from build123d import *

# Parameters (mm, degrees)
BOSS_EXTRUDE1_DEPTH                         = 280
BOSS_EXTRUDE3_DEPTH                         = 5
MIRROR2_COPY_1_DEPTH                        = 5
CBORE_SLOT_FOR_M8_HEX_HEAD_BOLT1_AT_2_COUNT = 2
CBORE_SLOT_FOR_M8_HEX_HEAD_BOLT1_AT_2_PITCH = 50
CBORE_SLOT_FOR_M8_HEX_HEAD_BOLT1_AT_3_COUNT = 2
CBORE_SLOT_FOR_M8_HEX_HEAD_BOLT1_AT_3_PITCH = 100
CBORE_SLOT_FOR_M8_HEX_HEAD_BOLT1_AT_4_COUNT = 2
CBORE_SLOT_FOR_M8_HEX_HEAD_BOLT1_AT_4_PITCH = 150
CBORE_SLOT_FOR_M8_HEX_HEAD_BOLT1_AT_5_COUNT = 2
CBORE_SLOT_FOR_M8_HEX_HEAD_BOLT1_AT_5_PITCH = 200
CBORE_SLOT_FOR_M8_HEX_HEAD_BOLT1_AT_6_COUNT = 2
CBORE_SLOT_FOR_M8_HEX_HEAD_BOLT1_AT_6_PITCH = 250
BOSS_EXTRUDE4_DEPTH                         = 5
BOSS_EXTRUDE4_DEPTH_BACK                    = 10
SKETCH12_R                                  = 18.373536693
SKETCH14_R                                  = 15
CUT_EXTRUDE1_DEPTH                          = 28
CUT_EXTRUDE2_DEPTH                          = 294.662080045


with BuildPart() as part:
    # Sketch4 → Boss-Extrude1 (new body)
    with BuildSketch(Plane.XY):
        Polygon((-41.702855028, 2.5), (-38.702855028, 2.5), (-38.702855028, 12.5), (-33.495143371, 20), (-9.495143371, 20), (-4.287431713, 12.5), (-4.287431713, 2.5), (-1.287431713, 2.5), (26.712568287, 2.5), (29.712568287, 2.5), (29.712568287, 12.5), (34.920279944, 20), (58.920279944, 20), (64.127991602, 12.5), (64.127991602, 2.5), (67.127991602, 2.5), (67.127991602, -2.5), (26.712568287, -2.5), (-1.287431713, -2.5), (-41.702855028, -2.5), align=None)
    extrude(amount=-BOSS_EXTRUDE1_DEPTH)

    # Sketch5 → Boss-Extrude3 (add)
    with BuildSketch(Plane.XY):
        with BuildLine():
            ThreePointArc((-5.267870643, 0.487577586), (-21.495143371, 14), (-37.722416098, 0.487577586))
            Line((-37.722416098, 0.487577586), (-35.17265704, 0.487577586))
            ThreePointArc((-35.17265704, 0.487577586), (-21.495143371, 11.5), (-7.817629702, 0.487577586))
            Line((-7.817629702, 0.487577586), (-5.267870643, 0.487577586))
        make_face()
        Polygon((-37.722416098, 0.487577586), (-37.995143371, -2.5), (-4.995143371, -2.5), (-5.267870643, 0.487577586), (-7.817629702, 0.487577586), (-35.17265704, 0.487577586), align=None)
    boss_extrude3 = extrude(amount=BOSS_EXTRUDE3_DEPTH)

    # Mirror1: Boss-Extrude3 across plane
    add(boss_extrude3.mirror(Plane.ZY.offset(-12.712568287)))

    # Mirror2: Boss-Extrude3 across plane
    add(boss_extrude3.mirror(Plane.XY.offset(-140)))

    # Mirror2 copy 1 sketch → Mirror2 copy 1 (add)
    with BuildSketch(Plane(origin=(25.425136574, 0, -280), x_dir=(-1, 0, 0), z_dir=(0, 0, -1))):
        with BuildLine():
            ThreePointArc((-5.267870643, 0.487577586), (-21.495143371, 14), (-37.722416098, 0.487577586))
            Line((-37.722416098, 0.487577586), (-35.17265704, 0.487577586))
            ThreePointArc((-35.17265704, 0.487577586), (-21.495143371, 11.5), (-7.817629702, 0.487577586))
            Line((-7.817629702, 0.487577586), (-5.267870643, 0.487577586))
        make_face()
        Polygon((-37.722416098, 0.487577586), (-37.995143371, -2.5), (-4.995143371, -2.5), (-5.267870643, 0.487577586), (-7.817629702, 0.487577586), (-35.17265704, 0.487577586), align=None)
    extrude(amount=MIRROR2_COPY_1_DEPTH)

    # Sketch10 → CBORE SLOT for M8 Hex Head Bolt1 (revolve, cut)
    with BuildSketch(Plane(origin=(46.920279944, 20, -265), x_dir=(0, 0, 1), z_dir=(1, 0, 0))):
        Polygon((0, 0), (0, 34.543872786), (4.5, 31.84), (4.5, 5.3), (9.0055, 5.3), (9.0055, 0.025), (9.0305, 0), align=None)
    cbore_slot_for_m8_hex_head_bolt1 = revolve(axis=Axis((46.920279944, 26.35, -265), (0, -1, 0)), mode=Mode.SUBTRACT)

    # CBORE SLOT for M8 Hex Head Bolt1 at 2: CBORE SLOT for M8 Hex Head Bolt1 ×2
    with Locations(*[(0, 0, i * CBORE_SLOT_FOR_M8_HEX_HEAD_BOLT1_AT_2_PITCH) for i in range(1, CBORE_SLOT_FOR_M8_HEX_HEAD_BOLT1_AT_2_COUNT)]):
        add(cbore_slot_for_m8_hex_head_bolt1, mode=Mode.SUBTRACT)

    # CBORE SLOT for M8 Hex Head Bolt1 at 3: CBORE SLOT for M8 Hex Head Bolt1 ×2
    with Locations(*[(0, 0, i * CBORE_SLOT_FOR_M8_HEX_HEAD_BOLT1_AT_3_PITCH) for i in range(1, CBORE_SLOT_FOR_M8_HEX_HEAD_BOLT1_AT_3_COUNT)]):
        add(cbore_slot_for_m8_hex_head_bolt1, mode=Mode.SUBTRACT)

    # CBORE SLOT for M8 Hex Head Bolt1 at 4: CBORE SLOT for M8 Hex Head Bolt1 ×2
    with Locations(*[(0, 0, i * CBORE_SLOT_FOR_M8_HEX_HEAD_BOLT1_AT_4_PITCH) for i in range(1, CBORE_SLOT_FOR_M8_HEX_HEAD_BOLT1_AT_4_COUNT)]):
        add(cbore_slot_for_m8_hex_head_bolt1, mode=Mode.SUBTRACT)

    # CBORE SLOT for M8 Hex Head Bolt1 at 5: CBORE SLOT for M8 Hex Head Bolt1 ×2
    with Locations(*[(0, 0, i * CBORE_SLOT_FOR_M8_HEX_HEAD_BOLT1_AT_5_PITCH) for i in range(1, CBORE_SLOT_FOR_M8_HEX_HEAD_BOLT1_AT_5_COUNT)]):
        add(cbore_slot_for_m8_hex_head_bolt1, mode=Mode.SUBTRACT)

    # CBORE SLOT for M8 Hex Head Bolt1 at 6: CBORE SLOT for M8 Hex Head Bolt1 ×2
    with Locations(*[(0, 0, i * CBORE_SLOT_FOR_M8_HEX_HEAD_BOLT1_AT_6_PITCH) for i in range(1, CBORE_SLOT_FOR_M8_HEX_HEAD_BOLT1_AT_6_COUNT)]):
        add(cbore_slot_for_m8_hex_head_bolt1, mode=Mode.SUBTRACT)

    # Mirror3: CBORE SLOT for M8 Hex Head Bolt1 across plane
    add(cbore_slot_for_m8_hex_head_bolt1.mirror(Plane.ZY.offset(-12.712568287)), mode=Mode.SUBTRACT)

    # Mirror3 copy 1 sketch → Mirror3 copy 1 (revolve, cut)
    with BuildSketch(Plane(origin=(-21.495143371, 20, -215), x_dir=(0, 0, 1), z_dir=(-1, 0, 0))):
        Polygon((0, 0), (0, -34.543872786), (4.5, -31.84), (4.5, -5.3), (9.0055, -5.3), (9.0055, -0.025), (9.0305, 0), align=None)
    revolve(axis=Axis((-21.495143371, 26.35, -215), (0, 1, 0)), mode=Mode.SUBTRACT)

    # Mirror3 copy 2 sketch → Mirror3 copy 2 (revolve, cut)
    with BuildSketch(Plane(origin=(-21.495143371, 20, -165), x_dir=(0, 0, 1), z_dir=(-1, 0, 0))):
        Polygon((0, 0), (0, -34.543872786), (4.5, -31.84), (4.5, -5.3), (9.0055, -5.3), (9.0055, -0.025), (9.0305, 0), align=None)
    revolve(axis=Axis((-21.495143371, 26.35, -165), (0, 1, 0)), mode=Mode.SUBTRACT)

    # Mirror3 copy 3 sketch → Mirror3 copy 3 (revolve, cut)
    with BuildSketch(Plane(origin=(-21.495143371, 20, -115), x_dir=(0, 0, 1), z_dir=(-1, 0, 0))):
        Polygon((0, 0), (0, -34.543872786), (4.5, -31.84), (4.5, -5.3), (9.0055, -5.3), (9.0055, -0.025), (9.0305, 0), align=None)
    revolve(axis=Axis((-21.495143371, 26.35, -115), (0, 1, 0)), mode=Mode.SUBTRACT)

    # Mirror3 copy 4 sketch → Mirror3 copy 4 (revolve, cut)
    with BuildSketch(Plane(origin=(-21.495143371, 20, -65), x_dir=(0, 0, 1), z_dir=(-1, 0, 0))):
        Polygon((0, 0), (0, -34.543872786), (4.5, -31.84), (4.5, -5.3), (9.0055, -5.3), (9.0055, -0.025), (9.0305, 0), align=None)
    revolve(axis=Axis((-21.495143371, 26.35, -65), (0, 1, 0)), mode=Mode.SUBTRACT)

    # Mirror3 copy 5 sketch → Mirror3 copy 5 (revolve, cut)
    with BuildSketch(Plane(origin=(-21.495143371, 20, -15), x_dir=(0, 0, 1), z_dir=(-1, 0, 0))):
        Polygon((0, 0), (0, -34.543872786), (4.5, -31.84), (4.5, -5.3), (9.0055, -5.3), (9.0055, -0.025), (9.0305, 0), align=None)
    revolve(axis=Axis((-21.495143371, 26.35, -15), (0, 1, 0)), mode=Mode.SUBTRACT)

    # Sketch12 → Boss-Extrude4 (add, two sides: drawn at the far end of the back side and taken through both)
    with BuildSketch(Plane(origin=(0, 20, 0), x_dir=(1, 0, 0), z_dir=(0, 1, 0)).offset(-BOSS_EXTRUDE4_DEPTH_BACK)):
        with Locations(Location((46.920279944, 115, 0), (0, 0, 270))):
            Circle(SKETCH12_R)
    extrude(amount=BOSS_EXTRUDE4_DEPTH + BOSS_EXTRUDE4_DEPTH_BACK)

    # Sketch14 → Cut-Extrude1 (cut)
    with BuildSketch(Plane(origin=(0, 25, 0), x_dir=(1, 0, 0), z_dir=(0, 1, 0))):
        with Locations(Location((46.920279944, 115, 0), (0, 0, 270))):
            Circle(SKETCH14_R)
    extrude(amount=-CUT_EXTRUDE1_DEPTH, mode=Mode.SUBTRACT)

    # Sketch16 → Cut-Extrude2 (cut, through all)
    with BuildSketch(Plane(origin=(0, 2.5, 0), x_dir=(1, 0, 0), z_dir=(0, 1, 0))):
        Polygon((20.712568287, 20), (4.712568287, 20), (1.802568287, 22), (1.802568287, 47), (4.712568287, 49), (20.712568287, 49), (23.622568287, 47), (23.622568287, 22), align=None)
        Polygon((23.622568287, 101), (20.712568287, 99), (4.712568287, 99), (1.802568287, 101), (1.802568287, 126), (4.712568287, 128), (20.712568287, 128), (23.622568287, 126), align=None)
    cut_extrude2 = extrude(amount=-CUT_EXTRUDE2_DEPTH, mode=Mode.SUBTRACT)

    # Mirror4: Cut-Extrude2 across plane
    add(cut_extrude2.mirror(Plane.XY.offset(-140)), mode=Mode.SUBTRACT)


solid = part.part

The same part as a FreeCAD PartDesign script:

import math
import FreeCAD as App
import Part
import Sketcher

V = App.Vector
Q = App.Units.Quantity

doc = App.newDocument("Part")
body = doc.addObject("PartDesign::Body", "Body")

sketch1 = body.newObject("Sketcher::SketchObject", "Sketch")
sketch1.AttachmentSupport = (doc.getObject("XY_Plane"), [""])
sketch1.MapMode = "FlatFace"
sketch1.addGeometry([
    Part.LineSegment(V(-38.702855, 2.5, 0), V(-41.702855, 2.5, 0)),
    Part.LineSegment(V(-41.702855, 2.5, 0), V(-41.702855, -2.5, 0)),
    Part.LineSegment(V(-41.702855, -2.5, 0), V(67.127992, -2.5, 0)),
    Part.LineSegment(V(67.127992, -2.5, 0), V(67.127992, 2.5, 0)),
    Part.LineSegment(V(67.127992, 2.5, 0), V(64.127992, 2.5, 0)),
    Part.LineSegment(V(64.127992, 2.5, 0), V(64.127992, 12.5, 0)),
    Part.LineSegment(V(64.127992, 12.5, 0), V(58.92028, 20, 0)),
    Part.LineSegment(V(58.92028, 20, 0), V(34.92028, 20, 0)),
    Part.LineSegment(V(34.92028, 20, 0), V(29.712568, 12.5, 0)),
    Part.LineSegment(V(29.712568, 12.5, 0), V(29.712568, 2.5, 0)),
    Part.LineSegment(V(29.712568, 2.5, 0), V(-4.287432, 2.5, 0)),
    Part.LineSegment(V(-4.287432, 2.5, 0), V(-4.287432, 12.5, 0)),
    Part.LineSegment(V(-4.287432, 12.5, 0), V(-9.495143, 20, 0)),
    Part.LineSegment(V(-9.495143, 20, 0), V(-33.495143, 20, 0)),
    Part.LineSegment(V(-33.495143, 20, 0), V(-38.702855, 12.5, 0)),
    Part.LineSegment(V(-38.702855, 12.5, 0), V(-38.702855, 2.5, 0)),
], False)
sketch1.addConstraint([
    Sketcher.Constraint("Coincident", 0, 2, 1, 1),
    Sketcher.Constraint("Coincident", 1, 2, 2, 1),
    Sketcher.Constraint("Coincident", 2, 2, 3, 1),
    Sketcher.Constraint("Coincident", 3, 2, 4, 1),
    Sketcher.Constraint("Coincident", 4, 2, 5, 1),
    Sketcher.Constraint("Coincident", 5, 2, 6, 1),
    Sketcher.Constraint("Coincident", 6, 2, 7, 1),
    Sketcher.Constraint("Coincident", 7, 2, 8, 1),
    Sketcher.Constraint("Coincident", 8, 2, 9, 1),
    Sketcher.Constraint("Coincident", 9, 2, 10, 1),
    Sketcher.Constraint("Coincident", 10, 2, 11, 1),
    Sketcher.Constraint("Coincident", 11, 2, 12, 1),
    Sketcher.Constraint("Coincident", 12, 2, 13, 1),
    Sketcher.Constraint("Coincident", 13, 2, 14, 1),
    Sketcher.Constraint("Coincident", 14, 2, 15, 1),
    Sketcher.Constraint("Coincident", 15, 2, 0, 1),
    Sketcher.Constraint("Horizontal", 0),
    Sketcher.Constraint("Vertical", 1),
    Sketcher.Constraint("Horizontal", 2),
    Sketcher.Constraint("Vertical", 3),
    Sketcher.Constraint("Horizontal", 4),
    Sketcher.Constraint("Vertical", 5),
    Sketcher.Constraint("Horizontal", 7),
    Sketcher.Constraint("Vertical", 9),
    Sketcher.Constraint("Horizontal", 10),
    Sketcher.Constraint("Vertical", 11),
    Sketcher.Constraint("Horizontal", 13),
    Sketcher.Constraint("Vertical", 15),
    Sketcher.Constraint("Parallel", 6, 12),
    Sketcher.Constraint("Parallel", 8, 14),
    Sketcher.Constraint("Horizontal", 0, 2, 3, 2),
    Sketcher.Constraint("Horizontal", 5, 2, 8, 2),
    Sketcher.Constraint("Horizontal", 4, 2, 9, 2),
    Sketcher.Constraint("Horizontal", 8, 2, 11, 2),
    Sketcher.Constraint("Horizontal", 7, 2, 12, 2),
    Sketcher.Constraint("Horizontal", 11, 2, 14, 2),
    Sketcher.Constraint("Equal", 0, 4),
    Sketcher.Constraint("Equal", 7, 13),
    Sketcher.Constraint("Equal", 6, 8),
    Sketcher.Constraint("DistanceX", 0, 2, 0, 1, Q("3 mm")),
    Sketcher.Constraint("DistanceX", 7, 2, 7, 1, Q("24 mm")),
    Sketcher.Constraint("DistanceX", 10, 2, 10, 1, Q("34 mm")),
    Sketcher.Constraint("DistanceY", 1, 2, 1, 1, Q("5 mm")),
    Sketcher.Constraint("DistanceY", 5, 1, 5, 2, Q("10 mm")),
    Sketcher.Constraint("DistanceY", -1, 1, 6, 2, Q("20 mm")),
    Sketcher.Constraint("DistanceY", -1, 1, 0, 2, Q("2.5 mm")),
    Sketcher.Constraint("Distance", 6, Q("9.130732 mm")),
    Sketcher.Constraint("DistanceX", -1, 1, 2, 2, Q("67.127992 mm")),
])
pad1 = body.newObject("PartDesign::Pad", "Pad")
pad1.Profile = sketch1
pad1.Length = 280
pad1.Reversed = True

sketch2 = body.newObject("Sketcher::SketchObject", "Sketch001")
sketch2.AttachmentSupport = (doc.getObject("XY_Plane"), [""])
sketch2.MapMode = "FlatFace"
sketch2.addGeometry([
    Part.ArcOfCircle(Part.Circle(V(-21.495143, -2.5, 0), V(0, 0, 1), 16.5), math.radians(10.431817), math.radians(169.568183)),
    Part.LineSegment(V(-37.722416, 0.487578, 0), V(-37.995143, -2.5, 0)),
    Part.LineSegment(V(-37.995143, -2.5, 0), V(-4.995143, -2.5, 0)),
    Part.LineSegment(V(-4.995143, -2.5, 0), V(-5.267871, 0.487578, 0)),
    Part.ArcOfCircle(Part.Circle(V(-21.495143, -2.5, 0), V(0, 0, 1), 14), math.radians(12.321582), math.radians(167.678418)),
    Part.LineSegment(V(-7.81763, 0.487578, 0), V(-35.172657, 0.487578, 0)),
], False)
sketch2.addConstraint([
    Sketcher.Constraint("Coincident", 0, 2, 1, 1),
    Sketcher.Constraint("Coincident", 1, 2, 2, 1),
    Sketcher.Constraint("Coincident", 2, 2, 3, 1),
    Sketcher.Constraint("Coincident", 3, 2, 0, 1),
    Sketcher.Constraint("Coincident", 4, 1, 5, 1),
    Sketcher.Constraint("Coincident", 5, 2, 4, 2),
    Sketcher.Constraint("Horizontal", 2),
    Sketcher.Constraint("Horizontal", 5),
    Sketcher.Constraint("Coincident", 4, 3, 0, 3),
    Sketcher.Constraint("Horizontal", 4, 3, 1, 2),
    Sketcher.Constraint("Horizontal", 0, 2, 3, 2),
    Sketcher.Constraint("Horizontal", 3, 2, 4, 1),
    Sketcher.Constraint("Equal", 1, 3),
    Sketcher.Constraint("Radius", 4, Q("14 mm")),
    Sketcher.Constraint("Radius", 0, Q("16.5 mm")),
    Sketcher.Constraint("DistanceX", 2, 1, 2, 2, Q("33 mm")),
    Sketcher.Constraint("Distance", 1, Q("3 mm")),
    Sketcher.Constraint("DistanceY", 0, 3, -1, 1, Q("2.5 mm")),
    Sketcher.Constraint("DistanceX", 3, 2, -1, 1, Q("5.267871 mm")),
])
pad2 = body.newObject("PartDesign::Pad", "Pad001")
pad2.Profile = sketch2
pad2.Length = 5
doc.recompute()

datumplane = body.newObject("PartDesign::Plane", "DatumPlane")
datumplane.AttachmentSupport = (doc.getObject("YZ_Plane"), [""])
datumplane.MapMode = "FlatFace"
datumplane.AttachmentOffset = App.Placement(V(0, 0, 12.712568), App.Rotation())
mirrored = body.newObject("PartDesign::Mirrored", "Mirrored")
mirrored.Originals = [pad2]
mirrored.MirrorPlane = (datumplane, [""])
body.Tip = mirrored
doc.recompute()

datumplane2 = body.newObject("PartDesign::Plane", "DatumPlane001")
datumplane2.AttachmentSupport = (doc.getObject("XY_Plane"), [""])
datumplane2.MapMode = "FlatFace"
datumplane2.AttachmentOffset = App.Placement(V(0, 0, -140), App.Rotation())
mirrored2 = body.newObject("PartDesign::Mirrored", "Mirrored001")
mirrored2.Originals = [pad2]
mirrored2.MirrorPlane = (datumplane2, [""])
body.Tip = mirrored2

sketch3 = body.newObject("Sketcher::SketchObject", "Sketch002")
sketch3.AttachmentSupport = (doc.getObject("XY_Plane"), [""])
sketch3.MapMode = "FlatFace"
sketch3.AttachmentOffset = App.Placement(V(0, 0, -280), App.Rotation())
sketch3.addGeometry([
    Part.ArcOfCircle(Part.Circle(V(46.92028, -2.5, 0), V(0, 0, 1), 16.5), math.radians(10.431817), math.radians(169.568183)),
    Part.LineSegment(V(63.147553, 0.487578, 0), V(63.42028, -2.5, 0)),
    Part.LineSegment(V(63.42028, -2.5, 0), V(30.42028, -2.5, 0)),
    Part.LineSegment(V(30.42028, -2.5, 0), V(30.693007, 0.487578, 0)),
    Part.ArcOfCircle(Part.Circle(V(46.92028, -2.5, 0), V(0, 0, 1), 14), math.radians(12.321582), math.radians(167.678418)),
    Part.LineSegment(V(33.242766, 0.487578, 0), V(60.597794, 0.487578, 0)),
], False)
sketch3.addConstraint([
    Sketcher.Constraint("Coincident", 0, 1, 1, 1),
    Sketcher.Constraint("Coincident", 1, 2, 2, 1),
    Sketcher.Constraint("Coincident", 2, 2, 3, 1),
    Sketcher.Constraint("Coincident", 3, 2, 0, 2),
    Sketcher.Constraint("Coincident", 4, 1, 5, 2),
    Sketcher.Constraint("Coincident", 5, 1, 4, 2),
    Sketcher.Constraint("Horizontal", 2),
    Sketcher.Constraint("Horizontal", 5),
    Sketcher.Constraint("Coincident", 4, 3, 0, 3),
    Sketcher.Constraint("Horizontal", 4, 3, 1, 2),
    Sketcher.Constraint("Horizontal", 0, 1, 3, 2),
    Sketcher.Constraint("Horizontal", 3, 2, 4, 1),
    Sketcher.Constraint("Equal", 1, 3),
    Sketcher.Constraint("Radius", 4, Q("14 mm")),
    Sketcher.Constraint("Radius", 0, Q("16.5 mm")),
    Sketcher.Constraint("DistanceX", 2, 2, 2, 1, Q("33 mm")),
    Sketcher.Constraint("Distance", 1, Q("3 mm")),
    Sketcher.Constraint("DistanceY", 0, 3, -1, 1, Q("2.5 mm")),
    Sketcher.Constraint("DistanceX", -1, 1, 0, 3, Q("46.92028 mm")),
])
pad3 = body.newObject("PartDesign::Pad", "Pad002")
pad3.Profile = sketch3
pad3.Length = 5
pad3.Reversed = True

sketch4 = body.newObject("Sketcher::SketchObject", "Sketch003")
sketch4.AttachmentSupport = (doc.getObject("YZ_Plane"), [""])
sketch4.MapMode = "FlatFace"
sketch4.AttachmentOffset = App.Placement(V(0, 0, 46.92028), App.Rotation())
sketch4.addGeometry([
    Part.LineSegment(V(-14.543873, -265, 0), V(20, -265, 0)),
    Part.LineSegment(V(20, -265, 0), V(20, -255.9695, 0)),
    Part.LineSegment(V(20, -255.9695, 0), V(19.975, -255.9945, 0)),
    Part.LineSegment(V(19.975, -255.9945, 0), V(14.7, -255.9945, 0)),
    Part.LineSegment(V(14.7, -255.9945, 0), V(14.7, -260.5, 0)),
    Part.LineSegment(V(14.7, -260.5, 0), V(-11.84, -260.5, 0)),
    Part.LineSegment(V(-11.84, -260.5, 0), V(-14.543873, -265, 0)),
], False)
sketch4.addGeometry(Part.LineSegment(V(20, -265, 0), V(-14.543873, -265, 0)), True)
sketch4.addConstraint([
    Sketcher.Constraint("Coincident", 0, 2, 1, 1),
    Sketcher.Constraint("Coincident", 1, 2, 2, 1),
    Sketcher.Constraint("Coincident", 2, 2, 3, 1),
    Sketcher.Constraint("Coincident", 3, 2, 4, 1),
    Sketcher.Constraint("Coincident", 4, 2, 5, 1),
    Sketcher.Constraint("Coincident", 5, 2, 6, 1),
    Sketcher.Constraint("Coincident", 6, 2, 0, 1),
    Sketcher.Constraint("Horizontal", 0),
    Sketcher.Constraint("Vertical", 1),
    Sketcher.Constraint("Horizontal", 3),
    Sketcher.Constraint("Vertical", 4),
    Sketcher.Constraint("Horizontal", 5),
    Sketcher.Constraint("Horizontal", 7),
    Sketcher.Constraint("Coincident", 7, 1, 0, 2),
    Sketcher.Constraint("Equal", 0, 7),
    Sketcher.Constraint("Angle", 2, Q("-135 deg")),
    Sketcher.Constraint("Angle", 6, Q("-121 deg")),
    Sketcher.Constraint("DistanceX", -1, 1, 0, 2, Q("20 mm")),
    Sketcher.Constraint("DistanceY", 0, 2, -1, 1, Q("265 mm")),
    Sketcher.Constraint("DistanceX", 5, 2, 5, 1, Q("26.54 mm")),
    Sketcher.Constraint("DistanceX", -1, 1, 3, 2, Q("14.7 mm")),
    Sketcher.Constraint("DistanceY", 4, 2, -1, 1, Q("260.5 mm")),
    Sketcher.Constraint("DistanceX", 3, 2, 3, 1, Q("5.275 mm")),
    Sketcher.Constraint("DistanceY", 1, 1, 1, 2, Q("9.0305 mm")),
])
groove = body.newObject("PartDesign::Groove", "Groove")
groove.Profile = sketch4
groove.ReferenceAxis = (sketch4, ["Axis0"])
groove.Angle = 360
doc.recompute()

linearpattern = body.newObject("PartDesign::LinearPattern", "LinearPattern")
linearpattern.Originals = [groove]
linearpattern.Direction = (doc.getObject("Z_Axis"), [""])
linearpattern.Mode = "offset"
linearpattern.Offset = 50
linearpattern.Occurrences = 2
body.Tip = linearpattern
doc.recompute()

linearpattern2 = body.newObject("PartDesign::LinearPattern", "LinearPattern001")
linearpattern2.Originals = [groove]
linearpattern2.Direction = (doc.getObject("Z_Axis"), [""])
linearpattern2.Mode = "offset"
linearpattern2.Offset = 100
linearpattern2.Occurrences = 2
body.Tip = linearpattern2
doc.recompute()

linearpattern3 = body.newObject("PartDesign::LinearPattern", "LinearPattern002")
linearpattern3.Originals = [groove]
linearpattern3.Direction = (doc.getObject("Z_Axis"), [""])
linearpattern3.Mode = "offset"
linearpattern3.Offset = 150
linearpattern3.Occurrences = 2
body.Tip = linearpattern3
doc.recompute()

linearpattern4 = body.newObject("PartDesign::LinearPattern", "LinearPattern003")
linearpattern4.Originals = [groove]
linearpattern4.Direction = (doc.getObject("Z_Axis"), [""])
linearpattern4.Mode = "offset"
linearpattern4.Offset = 200
linearpattern4.Occurrences = 2
body.Tip = linearpattern4
doc.recompute()

linearpattern5 = body.newObject("PartDesign::LinearPattern", "LinearPattern004")
linearpattern5.Originals = [groove]
linearpattern5.Direction = (doc.getObject("Z_Axis"), [""])
linearpattern5.Mode = "offset"
linearpattern5.Offset = 250
linearpattern5.Occurrences = 2
body.Tip = linearpattern5
doc.recompute()

datumplane3 = body.newObject("PartDesign::Plane", "DatumPlane002")
datumplane3.AttachmentSupport = (doc.getObject("YZ_Plane"), [""])
datumplane3.MapMode = "FlatFace"
datumplane3.AttachmentOffset = App.Placement(V(0, 0, 12.712568), App.Rotation())
mirrored3 = body.newObject("PartDesign::Mirrored", "Mirrored002")
mirrored3.Originals = [groove]
mirrored3.MirrorPlane = (datumplane3, [""])
body.Tip = mirrored3

sketch5 = body.newObject("Sketcher::SketchObject", "Sketch004")
sketch5.AttachmentSupport = (doc.getObject("YZ_Plane"), [""])
sketch5.MapMode = "FlatFace"
sketch5.AttachmentOffset = App.Placement(V(0, 0, -21.495143), App.Rotation())
sketch5.addGeometry([
    Part.LineSegment(V(20, -215, 0), V(-14.543873, -215, 0)),
    Part.LineSegment(V(-14.543873, -215, 0), V(-11.84, -210.5, 0)),
    Part.LineSegment(V(-11.84, -210.5, 0), V(14.7, -210.5, 0)),
    Part.LineSegment(V(14.7, -210.5, 0), V(14.7, -205.9945, 0)),
    Part.LineSegment(V(14.7, -205.9945, 0), V(19.975, -205.9945, 0)),
    Part.LineSegment(V(19.975, -205.9945, 0), V(20, -205.9695, 0)),
    Part.LineSegment(V(20, -205.9695, 0), V(20, -215, 0)),
], False)
sketch5.addGeometry(Part.LineSegment(V(-14.543873, -215, 0), V(20, -215, 0)), True)
sketch5.addConstraint([
    Sketcher.Constraint("Coincident", 0, 2, 1, 1),
    Sketcher.Constraint("Coincident", 1, 2, 2, 1),
    Sketcher.Constraint("Coincident", 2, 2, 3, 1),
    Sketcher.Constraint("Coincident", 3, 2, 4, 1),
    Sketcher.Constraint("Coincident", 4, 2, 5, 1),
    Sketcher.Constraint("Coincident", 5, 2, 6, 1),
    Sketcher.Constraint("Coincident", 6, 2, 0, 1),
    Sketcher.Constraint("Horizontal", 0),
    Sketcher.Constraint("Horizontal", 2),
    Sketcher.Constraint("Vertical", 3),
    Sketcher.Constraint("Horizontal", 4),
    Sketcher.Constraint("Vertical", 6),
    Sketcher.Constraint("Horizontal", 7),
    Sketcher.Constraint("Coincident", 7, 1, 0, 2),
    Sketcher.Constraint("Vertical", 5, 2, 7, 2),
    Sketcher.Constraint("Angle", 1, Q("59 deg")),
    Sketcher.Constraint("Angle", 5, Q("45 deg")),
    Sketcher.Constraint("DistanceY", 0, 2, -1, 1, Q("215 mm")),
    Sketcher.Constraint("DistanceX", -1, 1, 5, 2, Q("20 mm")),
    Sketcher.Constraint("DistanceX", 2, 1, 2, 2, Q("26.54 mm")),
    Sketcher.Constraint("DistanceY", 1, 2, -1, 1, Q("210.5 mm")),
    Sketcher.Constraint("DistanceX", -1, 1, 2, 2, Q("14.7 mm")),
    Sketcher.Constraint("DistanceX", 4, 1, 4, 2, Q("5.275 mm")),
    Sketcher.Constraint("DistanceY", 3, 1, 3, 2, Q("4.5055 mm")),
])
groove2 = body.newObject("PartDesign::Groove", "Groove001")
groove2.Profile = sketch5
groove2.ReferenceAxis = (sketch5, ["Axis0"])
groove2.Angle = 360

sketch6 = body.newObject("Sketcher::SketchObject", "Sketch005")
sketch6.AttachmentSupport = (doc.getObject("YZ_Plane"), [""])
sketch6.MapMode = "FlatFace"
sketch6.AttachmentOffset = App.Placement(V(0, 0, -21.495143), App.Rotation())
sketch6.addGeometry([
    Part.LineSegment(V(20, -165, 0), V(-14.543873, -165, 0)),
    Part.LineSegment(V(-14.543873, -165, 0), V(-11.84, -160.5, 0)),
    Part.LineSegment(V(-11.84, -160.5, 0), V(14.7, -160.5, 0)),
    Part.LineSegment(V(14.7, -160.5, 0), V(14.7, -155.9945, 0)),
    Part.LineSegment(V(14.7, -155.9945, 0), V(19.975, -155.9945, 0)),
    Part.LineSegment(V(19.975, -155.9945, 0), V(20, -155.9695, 0)),
    Part.LineSegment(V(20, -155.9695, 0), V(20, -165, 0)),
], False)
sketch6.addGeometry(Part.LineSegment(V(-14.543873, -165, 0), V(20, -165, 0)), True)
sketch6.addConstraint([
    Sketcher.Constraint("Coincident", 0, 2, 1, 1),
    Sketcher.Constraint("Coincident", 1, 2, 2, 1),
    Sketcher.Constraint("Coincident", 2, 2, 3, 1),
    Sketcher.Constraint("Coincident", 3, 2, 4, 1),
    Sketcher.Constraint("Coincident", 4, 2, 5, 1),
    Sketcher.Constraint("Coincident", 5, 2, 6, 1),
    Sketcher.Constraint("Coincident", 6, 2, 0, 1),
    Sketcher.Constraint("Horizontal", 0),
    Sketcher.Constraint("Horizontal", 2),
    Sketcher.Constraint("Vertical", 3),
    Sketcher.Constraint("Horizontal", 4),
    Sketcher.Constraint("Vertical", 6),
    Sketcher.Constraint("Horizontal", 7),
    Sketcher.Constraint("Coincident", 7, 1, 0, 2),
    Sketcher.Constraint("Vertical", 5, 2, 7, 2),
    Sketcher.Constraint("Angle", 1, Q("59 deg")),
    Sketcher.Constraint("Angle", 5, Q("45 deg")),
    Sketcher.Constraint("DistanceY", 0, 2, -1, 1, Q("165 mm")),
    Sketcher.Constraint("DistanceX", -1, 1, 5, 2, Q("20 mm")),
    Sketcher.Constraint("DistanceX", 2, 1, 2, 2, Q("26.54 mm")),
    Sketcher.Constraint("DistanceY", 1, 2, -1, 1, Q("160.5 mm")),
    Sketcher.Constraint("DistanceX", -1, 1, 2, 2, Q("14.7 mm")),
    Sketcher.Constraint("DistanceX", 4, 1, 4, 2, Q("5.275 mm")),
    Sketcher.Constraint("DistanceY", 3, 1, 3, 2, Q("4.5055 mm")),
])
groove3 = body.newObject("PartDesign::Groove", "Groove002")
groove3.Profile = sketch6
groove3.ReferenceAxis = (sketch6, ["Axis0"])
groove3.Angle = 360

sketch7 = body.newObject("Sketcher::SketchObject", "Sketch006")
sketch7.AttachmentSupport = (doc.getObject("YZ_Plane"), [""])
sketch7.MapMode = "FlatFace"
sketch7.AttachmentOffset = App.Placement(V(0, 0, -21.495143), App.Rotation())
sketch7.addGeometry([
    Part.LineSegment(V(20, -115, 0), V(-14.543873, -115, 0)),
    Part.LineSegment(V(-14.543873, -115, 0), V(-11.84, -110.5, 0)),
    Part.LineSegment(V(-11.84, -110.5, 0), V(14.7, -110.5, 0)),
    Part.LineSegment(V(14.7, -110.5, 0), V(14.7, -105.9945, 0)),
    Part.LineSegment(V(14.7, -105.9945, 0), V(19.975, -105.9945, 0)),
    Part.LineSegment(V(19.975, -105.9945, 0), V(20, -105.9695, 0)),
    Part.LineSegment(V(20, -105.9695, 0), V(20, -115, 0)),
], False)
sketch7.addGeometry(Part.LineSegment(V(-14.543873, -115, 0), V(20, -115, 0)), True)
sketch7.addConstraint([
    Sketcher.Constraint("Coincident", 0, 2, 1, 1),
    Sketcher.Constraint("Coincident", 1, 2, 2, 1),
    Sketcher.Constraint("Coincident", 2, 2, 3, 1),
    Sketcher.Constraint("Coincident", 3, 2, 4, 1),
    Sketcher.Constraint("Coincident", 4, 2, 5, 1),
    Sketcher.Constraint("Coincident", 5, 2, 6, 1),
    Sketcher.Constraint("Coincident", 6, 2, 0, 1),
    Sketcher.Constraint("Horizontal", 0),
    Sketcher.Constraint("Horizontal", 2),
    Sketcher.Constraint("Vertical", 3),
    Sketcher.Constraint("Horizontal", 4),
    Sketcher.Constraint("Vertical", 6),
    Sketcher.Constraint("Horizontal", 7),
    Sketcher.Constraint("Coincident", 7, 1, 0, 2),
    Sketcher.Constraint("Vertical", 5, 2, 7, 2),
    Sketcher.Constraint("Angle", 1, Q("59 deg")),
    Sketcher.Constraint("Angle", 5, Q("45 deg")),
    Sketcher.Constraint("DistanceY", 0, 2, -1, 1, Q("115 mm")),
    Sketcher.Constraint("DistanceX", -1, 1, 5, 2, Q("20 mm")),
    Sketcher.Constraint("DistanceX", 2, 1, 2, 2, Q("26.54 mm")),
    Sketcher.Constraint("DistanceY", 1, 2, -1, 1, Q("110.5 mm")),
    Sketcher.Constraint("DistanceX", -1, 1, 2, 2, Q("14.7 mm")),
    Sketcher.Constraint("DistanceX", 4, 1, 4, 2, Q("5.275 mm")),
    Sketcher.Constraint("DistanceY", 3, 1, 3, 2, Q("4.5055 mm")),
])
groove4 = body.newObject("PartDesign::Groove", "Groove003")
groove4.Profile = sketch7
groove4.ReferenceAxis = (sketch7, ["Axis0"])
groove4.Angle = 360

sketch8 = body.newObject("Sketcher::SketchObject", "Sketch007")
sketch8.AttachmentSupport = (doc.getObject("YZ_Plane"), [""])
sketch8.MapMode = "FlatFace"
sketch8.AttachmentOffset = App.Placement(V(0, 0, -21.495143), App.Rotation())
sketch8.addGeometry([
    Part.LineSegment(V(20, -65, 0), V(-14.543873, -65, 0)),
    Part.LineSegment(V(-14.543873, -65, 0), V(-11.84, -60.5, 0)),
    Part.LineSegment(V(-11.84, -60.5, 0), V(14.7, -60.5, 0)),
    Part.LineSegment(V(14.7, -60.5, 0), V(14.7, -55.9945, 0)),
    Part.LineSegment(V(14.7, -55.9945, 0), V(19.975, -55.9945, 0)),
    Part.LineSegment(V(19.975, -55.9945, 0), V(20, -55.9695, 0)),
    Part.LineSegment(V(20, -55.9695, 0), V(20, -65, 0)),
], False)
sketch8.addGeometry(Part.LineSegment(V(-14.543873, -65, 0), V(20, -65, 0)), True)
sketch8.addConstraint([
    Sketcher.Constraint("Coincident", 0, 2, 1, 1),
    Sketcher.Constraint("Coincident", 1, 2, 2, 1),
    Sketcher.Constraint("Coincident", 2, 2, 3, 1),
    Sketcher.Constraint("Coincident", 3, 2, 4, 1),
    Sketcher.Constraint("Coincident", 4, 2, 5, 1),
    Sketcher.Constraint("Coincident", 5, 2, 6, 1),
    Sketcher.Constraint("Coincident", 6, 2, 0, 1),
    Sketcher.Constraint("Horizontal", 0),
    Sketcher.Constraint("Horizontal", 2),
    Sketcher.Constraint("Vertical", 3),
    Sketcher.Constraint("Horizontal", 4),
    Sketcher.Constraint("Vertical", 6),
    Sketcher.Constraint("Horizontal", 7),
    Sketcher.Constraint("Coincident", 7, 1, 0, 2),
    Sketcher.Constraint("Vertical", 5, 2, 7, 2),
    Sketcher.Constraint("Angle", 1, Q("59 deg")),
    Sketcher.Constraint("Angle", 5, Q("45 deg")),
    Sketcher.Constraint("DistanceY", 0, 2, -1, 1, Q("65 mm")),
    Sketcher.Constraint("DistanceX", -1, 1, 5, 2, Q("20 mm")),
    Sketcher.Constraint("DistanceX", 2, 1, 2, 2, Q("26.54 mm")),
    Sketcher.Constraint("DistanceY", 1, 2, -1, 1, Q("60.5 mm")),
    Sketcher.Constraint("DistanceX", -1, 1, 2, 2, Q("14.7 mm")),
    Sketcher.Constraint("DistanceX", 4, 1, 4, 2, Q("5.275 mm")),
    Sketcher.Constraint("DistanceY", 3, 1, 3, 2, Q("4.5055 mm")),
])
groove5 = body.newObject("PartDesign::Groove", "Groove004")
groove5.Profile = sketch8
groove5.ReferenceAxis = (sketch8, ["Axis0"])
groove5.Angle = 360

sketch9 = body.newObject("Sketcher::SketchObject", "Sketch008")
sketch9.AttachmentSupport = (doc.getObject("YZ_Plane"), [""])
sketch9.MapMode = "FlatFace"
sketch9.AttachmentOffset = App.Placement(V(0, 0, -21.495143), App.Rotation())
sketch9.addGeometry([
    Part.LineSegment(V(20, -15, 0), V(-14.543873, -15, 0)),
    Part.LineSegment(V(-14.543873, -15, 0), V(-11.84, -10.5, 0)),
    Part.LineSegment(V(-11.84, -10.5, 0), V(14.7, -10.5, 0)),
    Part.LineSegment(V(14.7, -10.5, 0), V(14.7, -5.9945, 0)),
    Part.LineSegment(V(14.7, -5.9945, 0), V(19.975, -5.9945, 0)),
    Part.LineSegment(V(19.975, -5.9945, 0), V(20, -5.9695, 0)),
    Part.LineSegment(V(20, -5.9695, 0), V(20, -15, 0)),
], False)
sketch9.addGeometry(Part.LineSegment(V(-14.543873, -15, 0), V(20, -15, 0)), True)
sketch9.addConstraint([
    Sketcher.Constraint("Coincident", 0, 2, 1, 1),
    Sketcher.Constraint("Coincident", 1, 2, 2, 1),
    Sketcher.Constraint("Coincident", 2, 2, 3, 1),
    Sketcher.Constraint("Coincident", 3, 2, 4, 1),
    Sketcher.Constraint("Coincident", 4, 2, 5, 1),
    Sketcher.Constraint("Coincident", 5, 2, 6, 1),
    Sketcher.Constraint("Coincident", 6, 2, 0, 1),
    Sketcher.Constraint("Horizontal", 0),
    Sketcher.Constraint("Horizontal", 2),
    Sketcher.Constraint("Vertical", 3),
    Sketcher.Constraint("Horizontal", 4),
    Sketcher.Constraint("Vertical", 6),
    Sketcher.Constraint("Horizontal", 7),
    Sketcher.Constraint("Coincident", 7, 1, 0, 2),
    Sketcher.Constraint("Vertical", 5, 2, 7, 2),
    Sketcher.Constraint("Angle", 1, Q("59 deg")),
    Sketcher.Constraint("Angle", 5, Q("45 deg")),
    Sketcher.Constraint("DistanceY", 0, 2, -1, 1, Q("15 mm")),
    Sketcher.Constraint("DistanceX", -1, 1, 5, 2, Q("20 mm")),
    Sketcher.Constraint("DistanceX", 2, 1, 2, 2, Q("26.54 mm")),
    Sketcher.Constraint("DistanceY", 1, 2, -1, 1, Q("10.5 mm")),
    Sketcher.Constraint("DistanceX", -1, 1, 2, 2, Q("14.7 mm")),
    Sketcher.Constraint("DistanceX", 4, 1, 4, 2, Q("5.275 mm")),
    Sketcher.Constraint("DistanceY", 3, 1, 3, 2, Q("4.5055 mm")),
])
groove6 = body.newObject("PartDesign::Groove", "Groove005")
groove6.Profile = sketch9
groove6.ReferenceAxis = (sketch9, ["Axis0"])
groove6.Angle = 360

sketch10 = body.newObject("Sketcher::SketchObject", "Sketch009")
sketch10.AttachmentSupport = (doc.getObject("XZ_Plane"), [""])
sketch10.MapMode = "FlatFace"
sketch10.AttachmentOffset = App.Placement(V(0, 0, -20), App.Rotation())
sketch10.addGeometry(Part.Circle(V(46.92028, -115, 0), V(0, 0, 1), 18.373537), False)
sketch10.addConstraint([
    Sketcher.Constraint("DistanceY", 0, 3, -1, 1, Q("115 mm")),
    Sketcher.Constraint("Diameter", 0, Q("36.747073 mm")),
    Sketcher.Constraint("DistanceX", -1, 1, 0, 3, Q("46.92028 mm")),
])
pad4 = body.newObject("PartDesign::Pad", "Pad003")
pad4.Profile = sketch10
pad4.Type = "TwoLengths"
pad4.Length = 5
pad4.Length2 = 10
pad4.Reversed = True

sketch11 = body.newObject("Sketcher::SketchObject", "Sketch010")
sketch11.AttachmentSupport = (doc.getObject("XZ_Plane"), [""])
sketch11.MapMode = "FlatFace"
sketch11.AttachmentOffset = App.Placement(V(0, 0, -25), App.Rotation())
sketch11.addGeometry(Part.Circle(V(46.92028, -115, 0), V(0, 0, 1), 15), False)
sketch11.addConstraint([
    Sketcher.Constraint("Diameter", 0, Q("30 mm")),
    Sketcher.Constraint("DistanceY", 0, 3, -1, 1, Q("115 mm")),
    Sketcher.Constraint("DistanceX", -1, 1, 0, 3, Q("46.92028 mm")),
])
pocket1 = body.newObject("PartDesign::Pocket", "Pocket")
pocket1.Profile = sketch11
pocket1.Length = 28
pocket1.Reversed = True

sketch12 = body.newObject("Sketcher::SketchObject", "Sketch011")
sketch12.AttachmentSupport = (doc.getObject("XZ_Plane"), [""])
sketch12.MapMode = "FlatFace"
sketch12.AttachmentOffset = App.Placement(V(0, 0, -2.5), App.Rotation())
sketch12.addGeometry([
    Part.LineSegment(V(4.712568, -20, 0), V(20.712568, -20, 0)),
    Part.LineSegment(V(20.712568, -20, 0), V(23.622568, -22, 0)),
    Part.LineSegment(V(23.622568, -22, 0), V(23.622568, -47, 0)),
    Part.LineSegment(V(23.622568, -47, 0), V(20.712568, -49, 0)),
    Part.LineSegment(V(20.712568, -49, 0), V(4.712568, -49, 0)),
    Part.LineSegment(V(4.712568, -49, 0), V(1.802568, -47, 0)),
    Part.LineSegment(V(1.802568, -47, 0), V(1.802568, -22, 0)),
    Part.LineSegment(V(1.802568, -22, 0), V(4.712568, -20, 0)),
    Part.LineSegment(V(20.712568, -99, 0), V(23.622568, -101, 0)),
    Part.LineSegment(V(23.622568, -101, 0), V(23.622568, -126, 0)),
    Part.LineSegment(V(23.622568, -126, 0), V(20.712568, -128, 0)),
    Part.LineSegment(V(20.712568, -128, 0), V(4.712568, -128, 0)),
    Part.LineSegment(V(4.712568, -128, 0), V(1.802568, -126, 0)),
    Part.LineSegment(V(1.802568, -126, 0), V(1.802568, -101, 0)),
    Part.LineSegment(V(1.802568, -101, 0), V(4.712568, -99, 0)),
    Part.LineSegment(V(4.712568, -99, 0), V(20.712568, -99, 0)),
], False)
sketch12.addConstraint([
    Sketcher.Constraint("Coincident", 0, 2, 1, 1),
    Sketcher.Constraint("Coincident", 1, 2, 2, 1),
    Sketcher.Constraint("Coincident", 2, 2, 3, 1),
    Sketcher.Constraint("Coincident", 3, 2, 4, 1),
    Sketcher.Constraint("Coincident", 4, 2, 5, 1),
    Sketcher.Constraint("Coincident", 5, 2, 6, 1),
    Sketcher.Constraint("Coincident", 6, 2, 7, 1),
    Sketcher.Constraint("Coincident", 7, 2, 0, 1),
    Sketcher.Constraint("Coincident", 8, 2, 9, 1),
    Sketcher.Constraint("Coincident", 9, 2, 10, 1),
    Sketcher.Constraint("Coincident", 10, 2, 11, 1),
    Sketcher.Constraint("Coincident", 11, 2, 12, 1),
    Sketcher.Constraint("Coincident", 12, 2, 13, 1),
    Sketcher.Constraint("Coincident", 13, 2, 14, 1),
    Sketcher.Constraint("Coincident", 14, 2, 15, 1),
    Sketcher.Constraint("Coincident", 15, 2, 8, 1),
    Sketcher.Constraint("Horizontal", 0),
    Sketcher.Constraint("Vertical", 2),
    Sketcher.Constraint("Horizontal", 4),
    Sketcher.Constraint("Vertical", 6),
    Sketcher.Constraint("Vertical", 9),
    Sketcher.Constraint("Horizontal", 11),
    Sketcher.Constraint("Vertical", 13),
    Sketcher.Constraint("Horizontal", 15),
    Sketcher.Constraint("Parallel", 1, 5),
    Sketcher.Constraint("Parallel", 3, 7),
    Sketcher.Constraint("Parallel", 5, 8),
    Sketcher.Constraint("Parallel", 7, 10),
    Sketcher.Constraint("Parallel", 8, 12),
    Sketcher.Constraint("Parallel", 10, 14),
    Sketcher.Constraint("Horizontal", 2, 2, 5, 2),
    Sketcher.Constraint("Horizontal", 1, 2, 6, 2),
    Sketcher.Constraint("Horizontal", 9, 2, 12, 2),
    Sketcher.Constraint("Horizontal", 8, 2, 13, 2),
    Sketcher.Constraint("Vertical", 0, 2, 3, 2),
    Sketcher.Constraint("Vertical", 4, 2, 7, 2),
    Sketcher.Constraint("Vertical", 2, 2, 8, 2),
    Sketcher.Constraint("Vertical", 3, 2, 10, 2),
    Sketcher.Constraint("Vertical", 7, 2, 11, 2),
    Sketcher.Constraint("Vertical", 11, 2, 14, 2),
    Sketcher.Constraint("Equal", 6, 9),
    Sketcher.Constraint("DistanceX", 0, 1, 0, 2, Q("16 mm")),
    Sketcher.Constraint("DistanceY", 2, 2, 2, 1, Q("25 mm")),
    Sketcher.Constraint("DistanceY", 0, 2, -1, 1, Q("20 mm")),
    Sketcher.Constraint("DistanceY", 1, 2, -1, 1, Q("22 mm")),
    Sketcher.Constraint("DistanceY", 8, 2, -1, 1, Q("101 mm")),
    Sketcher.Constraint("DistanceX", 0, 2, 1, 2, Q("2.91 mm")),
    Sketcher.Constraint("DistanceX", -1, 1, 0, 2, Q("20.712568 mm")),
])
pocket2 = body.newObject("PartDesign::Pocket", "Pocket001")
pocket2.Profile = sketch12
pocket2.Type = "ThroughAll"
pocket2.Reversed = True
doc.recompute()

datumplane4 = body.newObject("PartDesign::Plane", "DatumPlane003")
datumplane4.AttachmentSupport = (doc.getObject("XY_Plane"), [""])
datumplane4.MapMode = "FlatFace"
datumplane4.AttachmentOffset = App.Placement(V(0, 0, -140), App.Rotation())
mirrored4 = body.newObject("PartDesign::Mirrored", "Mirrored003")
mirrored4.Originals = [pocket2]
mirrored4.MirrorPlane = (datumplane4, [""])
body.Tip = mirrored4

doc.recompute()
